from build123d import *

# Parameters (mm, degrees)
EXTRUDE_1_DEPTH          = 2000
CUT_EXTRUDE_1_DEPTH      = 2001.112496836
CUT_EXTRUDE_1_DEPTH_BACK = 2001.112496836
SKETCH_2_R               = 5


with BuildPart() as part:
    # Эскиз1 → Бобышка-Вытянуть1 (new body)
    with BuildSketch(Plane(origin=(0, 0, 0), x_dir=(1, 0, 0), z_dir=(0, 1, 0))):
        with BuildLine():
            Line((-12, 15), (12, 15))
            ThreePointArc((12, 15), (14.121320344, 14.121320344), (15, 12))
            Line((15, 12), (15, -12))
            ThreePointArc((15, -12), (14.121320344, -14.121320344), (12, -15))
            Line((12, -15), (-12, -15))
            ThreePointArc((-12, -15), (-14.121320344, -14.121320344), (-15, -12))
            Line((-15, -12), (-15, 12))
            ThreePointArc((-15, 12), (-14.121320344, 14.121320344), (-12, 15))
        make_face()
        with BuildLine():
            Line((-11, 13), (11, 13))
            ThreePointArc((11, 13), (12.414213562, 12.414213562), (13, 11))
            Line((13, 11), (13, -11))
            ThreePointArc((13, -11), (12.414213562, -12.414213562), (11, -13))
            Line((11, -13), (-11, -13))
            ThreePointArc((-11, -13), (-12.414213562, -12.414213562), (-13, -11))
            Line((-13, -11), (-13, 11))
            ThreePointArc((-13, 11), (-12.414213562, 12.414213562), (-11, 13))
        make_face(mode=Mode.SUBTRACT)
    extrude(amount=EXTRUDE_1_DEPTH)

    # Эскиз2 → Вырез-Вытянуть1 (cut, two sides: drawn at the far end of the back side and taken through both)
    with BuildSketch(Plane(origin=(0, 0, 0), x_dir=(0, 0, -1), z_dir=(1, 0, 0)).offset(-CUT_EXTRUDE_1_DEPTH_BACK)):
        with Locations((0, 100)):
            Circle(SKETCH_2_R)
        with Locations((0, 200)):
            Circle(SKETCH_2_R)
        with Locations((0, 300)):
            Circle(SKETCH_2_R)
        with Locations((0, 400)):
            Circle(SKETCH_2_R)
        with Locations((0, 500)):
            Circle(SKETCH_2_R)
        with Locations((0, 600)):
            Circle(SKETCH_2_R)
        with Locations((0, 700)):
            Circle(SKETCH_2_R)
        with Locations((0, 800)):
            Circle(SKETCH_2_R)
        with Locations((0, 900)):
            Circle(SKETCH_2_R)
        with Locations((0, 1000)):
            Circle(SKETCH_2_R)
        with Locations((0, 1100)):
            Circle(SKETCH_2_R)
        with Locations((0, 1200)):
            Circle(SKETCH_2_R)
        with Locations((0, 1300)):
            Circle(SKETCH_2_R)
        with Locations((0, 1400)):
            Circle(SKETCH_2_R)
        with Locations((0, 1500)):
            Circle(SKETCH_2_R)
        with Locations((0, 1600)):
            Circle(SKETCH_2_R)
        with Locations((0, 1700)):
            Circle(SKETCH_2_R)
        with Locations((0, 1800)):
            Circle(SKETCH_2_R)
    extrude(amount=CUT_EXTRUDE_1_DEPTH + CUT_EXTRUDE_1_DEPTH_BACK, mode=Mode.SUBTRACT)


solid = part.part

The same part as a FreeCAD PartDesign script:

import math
import FreeCAD as App
import Part
import Sketcher
from FreeCAD import Vector

doc = App.newDocument("Part")
body = doc.addObject("PartDesign::Body", "Body")

# Sketch on XZ plane
sketch1 = body.newObject("Sketcher::SketchObject", "Sketch")
sketch1.AttachmentSupport = (doc.getObject("XZ_Plane"), [""])
sketch1.MapMode = "FlatFace"
sketch1.addGeometry(Part.LineSegment(Vector(12, -15, 0), Vector(-12, -15, 0)), False)
sketch1.addGeometry(Part.ArcOfCircle(Part.Circle(Vector(-12, -12, 0), Vector(0, 0, 1), 3), math.radians(180), math.radians(270)), False)
sketch1.addGeometry(Part.LineSegment(Vector(-15, -12, 0), Vector(-15, 12, 0)), False)
sketch1.addGeometry(Part.ArcOfCircle(Part.Circle(Vector(-12, 12, 0), Vector(0, 0, 1), 3), math.radians(90), math.radians(180)), False)
sketch1.addGeometry(Part.LineSegment(Vector(-12, 15, 0), Vector(12, 15, 0)), False)
sketch1.addGeometry(Part.ArcOfCircle(Part.Circle(Vector(12, 12, 0), Vector(0, 0, 1), 3), math.radians(0), math.radians(90)), False)
sketch1.addGeometry(Part.LineSegment(Vector(15, 12, 0), Vector(15, -12, 0)), False)
sketch1.addGeometry(Part.ArcOfCircle(Part.Circle(Vector(12, -12, 0), Vector(0, 0, 1), 3), math.radians(-90), math.radians(0)), False)
sketch1.addGeometry(Part.LineSegment(Vector(-11, -13, 0), Vector(11, -13, 0)), False)
sketch1.addGeometry(Part.ArcOfCircle(Part.Circle(Vector(11, -11, 0), Vector(0, 0, 1), 2), math.radians(-90), math.radians(0)), False)
sketch1.addGeometry(Part.LineSegment(Vector(13, -11, 0), Vector(13, 11, 0)), False)
sketch1.addGeometry(Part.ArcOfCircle(Part.Circle(Vector(11, 11, 0), Vector(0, 0, 1), 2), math.radians(0), math.radians(90)), False)
sketch1.addGeometry(Part.LineSegment(Vector(11, 13, 0), Vector(-11, 13, 0)), False)
sketch1.addGeometry(Part.ArcOfCircle(Part.Circle(Vector(-11, 11, 0), Vector(0, 0, 1), 2), math.radians(90), math.radians(180)), False)
sketch1.addGeometry(Part.LineSegment(Vector(-13, 11, 0), Vector(-13, -11, 0)), False)
sketch1.addGeometry(Part.ArcOfCircle(Part.Circle(Vector(-11, -11, 0), Vector(0, 0, 1), 2), math.radians(-180), math.radians(-90)), False)
sketch1.addConstraint(Sketcher.Constraint("Tangent", 0, 2, 1, 2))
sketch1.addConstraint(Sketcher.Constraint("Tangent", 1, 1, 2, 1))
sketch1.addConstraint(Sketcher.Constraint("Tangent", 2, 2, 3, 2))
sketch1.addConstraint(Sketcher.Constraint("Tangent", 3, 1, 4, 1))
sketch1.addConstraint(Sketcher.Constraint("Tangent", 4, 2, 5, 2))
sketch1.addConstraint(Sketcher.Constraint("Tangent", 5, 1, 6, 1))
sketch1.addConstraint(Sketcher.Constraint("Tangent", 6, 2, 7, 2))
sketch1.addConstraint(Sketcher.Constraint("Tangent", 7, 1, 0, 1))
sketch1.addConstraint(Sketcher.Constraint("Tangent", 8, 2, 9, 1))
sketch1.addConstraint(Sketcher.Constraint("Tangent", 9, 2, 10, 1))
sketch1.addConstraint(Sketcher.Constraint("Tangent", 10, 2, 11, 1))
sketch1.addConstraint(Sketcher.Constraint("Tangent", 11, 2, 12, 1))
sketch1.addConstraint(Sketcher.Constraint("Tangent", 12, 2, 13, 1))
sketch1.addConstraint(Sketcher.Constraint("Tangent", 13, 2, 14, 1))
sketch1.addConstraint(Sketcher.Constraint("Tangent", 14, 2, 15, 1))
sketch1.addConstraint(Sketcher.Constraint("Tangent", 15, 2, 8, 1))
sketch1.addConstraint(Sketcher.Constraint("Horizontal", 0))
sketch1.addConstraint(Sketcher.Constraint("Vertical", 2))
sketch1.addConstraint(Sketcher.Constraint("Horizontal", 4))
sketch1.addConstraint(Sketcher.Constraint("Vertical", 6))
sketch1.addConstraint(Sketcher.Constraint("Horizontal", 8))
sketch1.addConstraint(Sketcher.Constraint("Vertical", 10))
sketch1.addConstraint(Sketcher.Constraint("Horizontal", 12))
sketch1.addConstraint(Sketcher.Constraint("Vertical", 14))
sketch1.addConstraint(Sketcher.Constraint("Equal", 1, 3))
sketch1.addConstraint(Sketcher.Constraint("Equal", 3, 5))
sketch1.addConstraint(Sketcher.Constraint("Equal", 5, 7))
sketch1.addConstraint(Sketcher.Constraint("Equal", 9, 11))
sketch1.addConstraint(Sketcher.Constraint("Equal", 11, 13))
sketch1.addConstraint(Sketcher.Constraint("Equal", 13, 15))
sketch1.addConstraint(Sketcher.Constraint("Symmetric", 1, 3, 5, 3, -1, 1))
sketch1.addConstraint(Sketcher.Constraint("Symmetric", 9, 3, 13, 3, -1, 1))
sketch1.addConstraint(Sketcher.Constraint("Equal", 4, 2))
sketch1.addConstraint(Sketcher.Constraint("Equal", 12, 10))
sketch1.addConstraint(Sketcher.Constraint("Radius", 1, 3.0))
sketch1.addConstraint(Sketcher.Constraint("Radius", 9, 2.0))
sketch1.addConstraint(Sketcher.Constraint("DistanceX", 0, 2, 0, 1, 24.0))
sketch1.addConstraint(Sketcher.Constraint("DistanceX", 8, 1, 8, 2, 22.0))
pad1 = body.newObject("PartDesign::Pad", "Pad")
pad1.Profile = sketch1
pad1.Length = 2000
pad1.Reversed = True

# Sketch on YZ plane
sketch2 = body.newObject("Sketcher::SketchObject", "Sketch001")
sketch2.AttachmentSupport = (doc.getObject("YZ_Plane"), [""])
sketch2.MapMode = "FlatFace"
sketch2.addGeometry(Part.Circle(Vector(100, 0, 0), Vector(0, 0, 1), 5), False)
sketch2.addGeometry(Part.Circle(Vector(200, 0, 0), Vector(0, 0, 1), 5), False)
sketch2.addGeometry(Part.Circle(Vector(300, 0, 0), Vector(0, 0, 1), 5), False)
sketch2.addGeometry(Part.Circle(Vector(400, 0, 0), Vector(0, 0, 1), 5), False)
sketch2.addGeometry(Part.Circle(Vector(500, 0, 0), Vector(0, 0, 1), 5), False)
sketch2.addGeometry(Part.Circle(Vector(600, 0, 0), Vector(0, 0, 1), 5), False)
sketch2.addGeometry(Part.Circle(Vector(700, 0, 0), Vector(0, 0, 1), 5), False)
sketch2.addGeometry(Part.Circle(Vector(800, 0, 0), Vector(0, 0, 1), 5), False)
sketch2.addGeometry(Part.Circle(Vector(900, 0, 0), Vector(0, 0, 1), 5), False)
sketch2.addGeometry(Part.Circle(Vector(1000, 0, 0), Vector(0, 0, 1), 5), False)
sketch2.addGeometry(Part.Circle(Vector(1100, 0, 0), Vector(0, 0, 1), 5), False)
sketch2.addGeometry(Part.Circle(Vector(1200, 0, 0), Vector(0, 0, 1), 5), False)
sketch2.addGeometry(Part.Circle(Vector(1300, 0, 0), Vector(0, 0, 1), 5), False)
sketch2.addGeometry(Part.Circle(Vector(1400, 0, 0), Vector(0, 0, 1), 5), False)
sketch2.addGeometry(Part.Circle(Vector(1500, 0, 0), Vector(0, 0, 1), 5), False)
sketch2.addGeometry(Part.Circle(Vector(1600, 0, 0), Vector(0, 0, 1), 5), False)
sketch2.addGeometry(Part.Circle(Vector(1700, 0, 0), Vector(0, 0, 1), 5), False)
sketch2.addGeometry(Part.Circle(Vector(1800, 0, 0), Vector(0, 0, 1), 5), False)
sketch2.addConstraint(Sketcher.Constraint("Equal", 0, 1))
sketch2.addConstraint(Sketcher.Constraint("Equal", 1, 2))
sketch2.addConstraint(Sketcher.Constraint("Equal", 2, 3))
sketch2.addConstraint(Sketcher.Constraint("Equal", 3, 4))
sketch2.addConstraint(Sketcher.Constraint("Equal", 4, 5))
sketch2.addConstraint(Sketcher.Constraint("Equal", 5, 6))
sketch2.addConstraint(Sketcher.Constraint("Equal", 6, 7))
sketch2.addConstraint(Sketcher.Constraint("Equal", 7, 8))
sketch2.addConstraint(Sketcher.Constraint("Equal", 8, 9))
sketch2.addConstraint(Sketcher.Constraint("Equal", 9, 10))
sketch2.addConstraint(Sketcher.Constraint("Equal", 10, 11))
sketch2.addConstraint(Sketcher.Constraint("Equal", 11, 12))
sketch2.addConstraint(Sketcher.Constraint("Equal", 12, 13))
sketch2.addConstraint(Sketcher.Constraint("Equal", 13, 14))
sketch2.addConstraint(Sketcher.Constraint("Equal", 14, 15))
sketch2.addConstraint(Sketcher.Constraint("Equal", 15, 16))
sketch2.addConstraint(Sketcher.Constraint("Equal", 16, 17))
sketch2.addConstraint(Sketcher.Constraint("PointOnObject", 0, 3, -1))
sketch2.addConstraint(Sketcher.Constraint("PointOnObject", 1, 3, -1))
sketch2.addConstraint(Sketcher.Constraint("PointOnObject", 2, 3, -1))
sketch2.addConstraint(Sketcher.Constraint("PointOnObject", 3, 3, -1))
sketch2.addConstraint(Sketcher.Constraint("PointOnObject", 4, 3, -1))
sketch2.addConstraint(Sketcher.Constraint("PointOnObject", 5, 3, -1))
sketch2.addConstraint(Sketcher.Constraint("PointOnObject", 6, 3, -1))
sketch2.addConstraint(Sketcher.Constraint("PointOnObject", 7, 3, -1))
sketch2.addConstraint(Sketcher.Constraint("PointOnObject", 8, 3, -1))
sketch2.addConstraint(Sketcher.Constraint("PointOnObject", 9, 3, -1))
sketch2.addConstraint(Sketcher.Constraint("PointOnObject", 10, 3, -1))
sketch2.addConstraint(Sketcher.Constraint("PointOnObject", 11, 3, -1))
sketch2.addConstraint(Sketcher.Constraint("PointOnObject", 12, 3, -1))
sketch2.addConstraint(Sketcher.Constraint("PointOnObject", 13, 3, -1))
sketch2.addConstraint(Sketcher.Constraint("PointOnObject", 14, 3, -1))
sketch2.addConstraint(Sketcher.Constraint("PointOnObject", 15, 3, -1))
sketch2.addConstraint(Sketcher.Constraint("PointOnObject", 16, 3, -1))
sketch2.addConstraint(Sketcher.Constraint("PointOnObject", 17, 3, -1))
sketch2.addConstraint(Sketcher.Constraint("Diameter", 0, 10.0))
sketch2.addConstraint(Sketcher.Constraint("DistanceX", -1, 1, 0, 3, 100.0))
sketch2.addConstraint(Sketcher.Constraint("DistanceX", -1, 1, 1, 3, 200.0))
sketch2.addConstraint(Sketcher.Constraint("DistanceX", -1, 1, 2, 3, 300.0))
sketch2.addConstraint(Sketcher.Constraint("DistanceX", -1, 1, 3, 3, 400.0))
sketch2.addConstraint(Sketcher.Constraint("DistanceX", -1, 1, 4, 3, 500.0))
sketch2.addConstraint(Sketcher.Constraint("DistanceX", -1, 1, 5, 3, 600.0))
sketch2.addConstraint(Sketcher.Constraint("DistanceX", -1, 1, 6, 3, 700.0))
sketch2.addConstraint(Sketcher.Constraint("DistanceX", -1, 1, 7, 3, 800.0))
sketch2.addConstraint(Sketcher.Constraint("DistanceX", -1, 1, 8, 3, 900.0))
sketch2.addConstraint(Sketcher.Constraint("DistanceX", -1, 1, 9, 3, 1000.0))
sketch2.addConstraint(Sketcher.Constraint("DistanceX", -1, 1, 10, 3, 1100.0))
sketch2.addConstraint(Sketcher.Constraint("DistanceX", -1, 1, 11, 3, 1200.0))
sketch2.addConstraint(Sketcher.Constraint("DistanceX", -1, 1, 12, 3, 1300.0))
sketch2.addConstraint(Sketcher.Constraint("DistanceX", -1, 1, 13, 3, 1400.0))
sketch2.addConstraint(Sketcher.Constraint("DistanceX", -1, 1, 14, 3, 1500.0))
sketch2.addConstraint(Sketcher.Constraint("DistanceX", -1, 1, 15, 3, 1600.0))
sketch2.addConstraint(Sketcher.Constraint("DistanceX", -1, 1, 16, 3, 1700.0))
sketch2.addConstraint(Sketcher.Constraint("DistanceX", -1, 1, 17, 3, 1800.0))
pocket1 = body.newObject("PartDesign::Pocket", "Pocket")
pocket1.Profile = sketch2
pocket1.Type = "ThroughAll"
pocket1.Midplane = True

doc.recompute()
